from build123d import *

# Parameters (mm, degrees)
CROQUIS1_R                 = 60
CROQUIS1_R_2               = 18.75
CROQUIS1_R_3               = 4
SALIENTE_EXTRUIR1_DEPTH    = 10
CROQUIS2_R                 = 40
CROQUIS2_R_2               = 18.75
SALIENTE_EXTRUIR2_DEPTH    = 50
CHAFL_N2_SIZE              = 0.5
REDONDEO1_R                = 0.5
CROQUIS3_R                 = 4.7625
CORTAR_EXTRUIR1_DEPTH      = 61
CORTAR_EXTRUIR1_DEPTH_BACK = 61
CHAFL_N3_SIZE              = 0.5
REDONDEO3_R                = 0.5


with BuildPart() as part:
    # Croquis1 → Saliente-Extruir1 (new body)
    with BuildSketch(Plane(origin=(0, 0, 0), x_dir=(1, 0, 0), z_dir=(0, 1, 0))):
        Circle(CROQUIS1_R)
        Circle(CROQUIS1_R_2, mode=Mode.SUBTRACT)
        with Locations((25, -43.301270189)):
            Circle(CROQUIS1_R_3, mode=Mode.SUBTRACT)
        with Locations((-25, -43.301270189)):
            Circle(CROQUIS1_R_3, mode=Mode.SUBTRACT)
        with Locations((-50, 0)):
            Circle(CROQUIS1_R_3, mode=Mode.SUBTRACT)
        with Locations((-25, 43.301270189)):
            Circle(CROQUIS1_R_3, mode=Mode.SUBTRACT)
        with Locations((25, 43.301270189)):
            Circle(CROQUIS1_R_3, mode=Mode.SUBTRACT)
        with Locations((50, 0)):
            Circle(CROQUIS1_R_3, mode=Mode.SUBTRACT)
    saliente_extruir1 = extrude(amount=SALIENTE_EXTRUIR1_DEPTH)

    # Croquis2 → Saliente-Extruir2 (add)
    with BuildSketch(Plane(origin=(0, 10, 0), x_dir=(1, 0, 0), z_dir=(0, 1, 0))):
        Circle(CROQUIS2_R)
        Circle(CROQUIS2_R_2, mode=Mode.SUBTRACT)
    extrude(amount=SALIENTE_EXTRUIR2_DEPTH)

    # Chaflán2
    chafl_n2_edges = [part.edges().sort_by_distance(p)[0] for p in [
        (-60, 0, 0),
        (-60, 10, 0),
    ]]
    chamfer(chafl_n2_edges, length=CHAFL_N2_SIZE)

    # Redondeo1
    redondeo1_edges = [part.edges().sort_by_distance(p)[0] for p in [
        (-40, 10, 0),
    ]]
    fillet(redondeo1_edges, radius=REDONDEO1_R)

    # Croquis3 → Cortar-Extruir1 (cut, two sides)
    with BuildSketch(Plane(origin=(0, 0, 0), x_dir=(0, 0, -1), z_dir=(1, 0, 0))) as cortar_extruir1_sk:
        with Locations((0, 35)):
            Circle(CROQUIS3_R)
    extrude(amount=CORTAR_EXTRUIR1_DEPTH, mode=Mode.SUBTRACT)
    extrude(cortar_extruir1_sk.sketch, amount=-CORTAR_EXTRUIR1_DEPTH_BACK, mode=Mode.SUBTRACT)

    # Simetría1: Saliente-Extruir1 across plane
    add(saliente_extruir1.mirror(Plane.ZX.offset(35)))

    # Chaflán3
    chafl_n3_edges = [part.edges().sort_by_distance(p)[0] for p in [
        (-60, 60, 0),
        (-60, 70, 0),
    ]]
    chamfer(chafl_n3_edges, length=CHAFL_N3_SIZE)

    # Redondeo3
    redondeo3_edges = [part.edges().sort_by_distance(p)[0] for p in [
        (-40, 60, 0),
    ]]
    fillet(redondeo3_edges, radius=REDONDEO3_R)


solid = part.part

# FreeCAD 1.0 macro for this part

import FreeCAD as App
import Part
import Sketcher

V = App.Vector
Q = App.Units.Quantity


def edges_at(feature, points):
    """Names of the edges that pass closest to the given points."""
    edges = feature.Shape.Edges
    near = lambda p: min(range(len(edges)), key=lambda i: edges[i].distToShape(Part.Vertex(*p))[0])
    return sorted({f"Edge{near(p) + 1}" for p in points})

doc = App.newDocument("Part")
body = doc.addObject("PartDesign::Body", "Body")

sketch1 = body.newObject("Sketcher::SketchObject", "Sketch")
sketch1.AttachmentSupport = (doc.getObject("XZ_Plane"), [""])
sketch1.MapMode = "FlatFace"
sketch1.addGeometry([
    Part.Circle(V(0, 0, 0), V(0, 0, 1), 60),
    Part.Circle(V(-25, 43.3, 0), V(0, 0, 1), 4),
    Part.Circle(V(25, 43.3, 0), V(0, 0, 1), 4),
    Part.Circle(V(-50, 0, 0), V(0, 0, 1), 4),
    Part.Circle(V(-25, -43.3, 0), V(0, 0, 1), 4),
    Part.Circle(V(0, 0, 0), V(0, 0, 1), 18.8),
    Part.Circle(V(50, 0, 0), V(0, 0, 1), 4),
    Part.Circle(V(25, -43.3, 0), V(0, 0, 1), 4),
], False)
sketch1.addConstraint([
    Sketcher.Constraint("Coincident", 0, 3, -1, 1),
    Sketcher.Constraint("Coincident", 5, 3, -1, 1),
    Sketcher.Constraint("Equal", 1, 2),
    Sketcher.Constraint("Equal", 2, 3),
    Sketcher.Constraint("Equal", 3, 4),
    Sketcher.Constraint("Equal", 4, 6),
    Sketcher.Constraint("Equal", 6, 7),
    Sketcher.Constraint("Symmetric", 2, 3, 4, 3, -1, 1),
    Sketcher.Constraint("Symmetric", 3, 3, 6, 3, -1, 1),
    Sketcher.Constraint("Symmetric", 1, 3, 7, 3, -1, 1),
    Sketcher.Constraint("Symmetric", 1, 3, 2, 3, -2),
    Sketcher.Constraint("PointOnObject", 3, 3, -1),
    Sketcher.Constraint("Diameter", 0, Q("120 mm")),
    Sketcher.Constraint("Diameter", 1, Q("8 mm")),
    Sketcher.Constraint("Diameter", 5, Q("37.5 mm")),
    Sketcher.Constraint("DistanceX", 1, 3, -1, 1, Q("25 mm")),
    Sketcher.Constraint("DistanceX", 3, 3, -1, 1, Q("50 mm")),
    Sketcher.Constraint("DistanceY", -1, 1, 1, 3, Q("43.30127 mm")),
])
pad1 = body.newObject("PartDesign::Pad", "Pad")
pad1.Profile = sketch1
pad1.Length = 10
pad1.Reversed = True

sketch2 = body.newObject("Sketcher::SketchObject", "Sketch001")
sketch2.AttachmentSupport = (doc.getObject("XZ_Plane"), [""])
sketch2.MapMode = "FlatFace"
sketch2.AttachmentOffset = App.Placement(V(0, 0, -10), App.Rotation())
sketch2.addGeometry([
    Part.Circle(V(0, 0, 0), V(0, 0, 1), 40),
    Part.Circle(V(0, 0, 0), V(0, 0, 1), 19),
], False)
sketch2.addConstraint([
    Sketcher.Constraint("Coincident", 0, 3, -1, 1),
    Sketcher.Constraint("Coincident", 1, 3, -1, 1),
    Sketcher.Constraint("Diameter", 0, Q("80 mm")),
    Sketcher.Constraint("Diameter", 1, Q("37.5 mm")),
])
pad2 = body.newObject("PartDesign::Pad", "Pad001")
pad2.Profile = sketch2
pad2.Length = 50
pad2.Reversed = True
doc.recompute()

chamfer = body.newObject("PartDesign::Chamfer", "Chamfer")
chamfer.Base = (pad2, edges_at(pad2, [(-60, 0, 0), (-60, 10, 0)]))
chamfer.Size = 0.5
doc.recompute()

fillet = body.newObject("PartDesign::Fillet", "Fillet")
fillet.Base = (chamfer, edges_at(chamfer, [(-40, 10, 0)]))
fillet.Radius = 0.5

sketch3 = body.newObject("Sketcher::SketchObject", "Sketch002")
sketch3.AttachmentSupport = (doc.getObject("YZ_Plane"), [""])
sketch3.MapMode = "FlatFace"
sketch3.addGeometry(Part.Circle(V(35, 0, 0), V(0, 0, 1), 4.8), False)
sketch3.addConstraint([
    Sketcher.Constraint("PointOnObject", 0, 3, -1),
    Sketcher.Constraint("Diameter", 0, Q("9.525 mm")),
    Sketcher.Constraint("DistanceX", -1, 1, 0, 3, Q("35 mm")),
])
pocket1 = body.newObject("PartDesign::Pocket", "Pocket")
pocket1.Profile = sketch3
pocket1.Type = "ThroughAll"
pocket1.Midplane = True
doc.recompute()

datumplane = body.newObject("PartDesign::Plane", "DatumPlane")
datumplane.AttachmentSupport = (doc.getObject("XZ_Plane"), [""])
datumplane.MapMode = "FlatFace"
datumplane.AttachmentOffset = App.Placement(V(0, 0, -35), App.Rotation())
mirrored = body.newObject("PartDesign::Mirrored", "Mirrored")
mirrored.Originals = [pad1]
mirrored.MirrorPlane = (datumplane, [""])
body.Tip = mirrored
doc.recompute()

chamfer2 = body.newObject("PartDesign::Chamfer", "Chamfer001")
chamfer2.Base = (mirrored, edges_at(mirrored, [(-60, 60, 0), (-60, 70, 0)]))
chamfer2.Size = 0.5
doc.recompute()

fillet2 = body.newObject("PartDesign::Fillet", "Fillet001")
fillet2.Base = (chamfer2, edges_at(chamfer2, [(-40, 60, 0)]))
fillet2.Radius = 0.5

doc.recompute()
